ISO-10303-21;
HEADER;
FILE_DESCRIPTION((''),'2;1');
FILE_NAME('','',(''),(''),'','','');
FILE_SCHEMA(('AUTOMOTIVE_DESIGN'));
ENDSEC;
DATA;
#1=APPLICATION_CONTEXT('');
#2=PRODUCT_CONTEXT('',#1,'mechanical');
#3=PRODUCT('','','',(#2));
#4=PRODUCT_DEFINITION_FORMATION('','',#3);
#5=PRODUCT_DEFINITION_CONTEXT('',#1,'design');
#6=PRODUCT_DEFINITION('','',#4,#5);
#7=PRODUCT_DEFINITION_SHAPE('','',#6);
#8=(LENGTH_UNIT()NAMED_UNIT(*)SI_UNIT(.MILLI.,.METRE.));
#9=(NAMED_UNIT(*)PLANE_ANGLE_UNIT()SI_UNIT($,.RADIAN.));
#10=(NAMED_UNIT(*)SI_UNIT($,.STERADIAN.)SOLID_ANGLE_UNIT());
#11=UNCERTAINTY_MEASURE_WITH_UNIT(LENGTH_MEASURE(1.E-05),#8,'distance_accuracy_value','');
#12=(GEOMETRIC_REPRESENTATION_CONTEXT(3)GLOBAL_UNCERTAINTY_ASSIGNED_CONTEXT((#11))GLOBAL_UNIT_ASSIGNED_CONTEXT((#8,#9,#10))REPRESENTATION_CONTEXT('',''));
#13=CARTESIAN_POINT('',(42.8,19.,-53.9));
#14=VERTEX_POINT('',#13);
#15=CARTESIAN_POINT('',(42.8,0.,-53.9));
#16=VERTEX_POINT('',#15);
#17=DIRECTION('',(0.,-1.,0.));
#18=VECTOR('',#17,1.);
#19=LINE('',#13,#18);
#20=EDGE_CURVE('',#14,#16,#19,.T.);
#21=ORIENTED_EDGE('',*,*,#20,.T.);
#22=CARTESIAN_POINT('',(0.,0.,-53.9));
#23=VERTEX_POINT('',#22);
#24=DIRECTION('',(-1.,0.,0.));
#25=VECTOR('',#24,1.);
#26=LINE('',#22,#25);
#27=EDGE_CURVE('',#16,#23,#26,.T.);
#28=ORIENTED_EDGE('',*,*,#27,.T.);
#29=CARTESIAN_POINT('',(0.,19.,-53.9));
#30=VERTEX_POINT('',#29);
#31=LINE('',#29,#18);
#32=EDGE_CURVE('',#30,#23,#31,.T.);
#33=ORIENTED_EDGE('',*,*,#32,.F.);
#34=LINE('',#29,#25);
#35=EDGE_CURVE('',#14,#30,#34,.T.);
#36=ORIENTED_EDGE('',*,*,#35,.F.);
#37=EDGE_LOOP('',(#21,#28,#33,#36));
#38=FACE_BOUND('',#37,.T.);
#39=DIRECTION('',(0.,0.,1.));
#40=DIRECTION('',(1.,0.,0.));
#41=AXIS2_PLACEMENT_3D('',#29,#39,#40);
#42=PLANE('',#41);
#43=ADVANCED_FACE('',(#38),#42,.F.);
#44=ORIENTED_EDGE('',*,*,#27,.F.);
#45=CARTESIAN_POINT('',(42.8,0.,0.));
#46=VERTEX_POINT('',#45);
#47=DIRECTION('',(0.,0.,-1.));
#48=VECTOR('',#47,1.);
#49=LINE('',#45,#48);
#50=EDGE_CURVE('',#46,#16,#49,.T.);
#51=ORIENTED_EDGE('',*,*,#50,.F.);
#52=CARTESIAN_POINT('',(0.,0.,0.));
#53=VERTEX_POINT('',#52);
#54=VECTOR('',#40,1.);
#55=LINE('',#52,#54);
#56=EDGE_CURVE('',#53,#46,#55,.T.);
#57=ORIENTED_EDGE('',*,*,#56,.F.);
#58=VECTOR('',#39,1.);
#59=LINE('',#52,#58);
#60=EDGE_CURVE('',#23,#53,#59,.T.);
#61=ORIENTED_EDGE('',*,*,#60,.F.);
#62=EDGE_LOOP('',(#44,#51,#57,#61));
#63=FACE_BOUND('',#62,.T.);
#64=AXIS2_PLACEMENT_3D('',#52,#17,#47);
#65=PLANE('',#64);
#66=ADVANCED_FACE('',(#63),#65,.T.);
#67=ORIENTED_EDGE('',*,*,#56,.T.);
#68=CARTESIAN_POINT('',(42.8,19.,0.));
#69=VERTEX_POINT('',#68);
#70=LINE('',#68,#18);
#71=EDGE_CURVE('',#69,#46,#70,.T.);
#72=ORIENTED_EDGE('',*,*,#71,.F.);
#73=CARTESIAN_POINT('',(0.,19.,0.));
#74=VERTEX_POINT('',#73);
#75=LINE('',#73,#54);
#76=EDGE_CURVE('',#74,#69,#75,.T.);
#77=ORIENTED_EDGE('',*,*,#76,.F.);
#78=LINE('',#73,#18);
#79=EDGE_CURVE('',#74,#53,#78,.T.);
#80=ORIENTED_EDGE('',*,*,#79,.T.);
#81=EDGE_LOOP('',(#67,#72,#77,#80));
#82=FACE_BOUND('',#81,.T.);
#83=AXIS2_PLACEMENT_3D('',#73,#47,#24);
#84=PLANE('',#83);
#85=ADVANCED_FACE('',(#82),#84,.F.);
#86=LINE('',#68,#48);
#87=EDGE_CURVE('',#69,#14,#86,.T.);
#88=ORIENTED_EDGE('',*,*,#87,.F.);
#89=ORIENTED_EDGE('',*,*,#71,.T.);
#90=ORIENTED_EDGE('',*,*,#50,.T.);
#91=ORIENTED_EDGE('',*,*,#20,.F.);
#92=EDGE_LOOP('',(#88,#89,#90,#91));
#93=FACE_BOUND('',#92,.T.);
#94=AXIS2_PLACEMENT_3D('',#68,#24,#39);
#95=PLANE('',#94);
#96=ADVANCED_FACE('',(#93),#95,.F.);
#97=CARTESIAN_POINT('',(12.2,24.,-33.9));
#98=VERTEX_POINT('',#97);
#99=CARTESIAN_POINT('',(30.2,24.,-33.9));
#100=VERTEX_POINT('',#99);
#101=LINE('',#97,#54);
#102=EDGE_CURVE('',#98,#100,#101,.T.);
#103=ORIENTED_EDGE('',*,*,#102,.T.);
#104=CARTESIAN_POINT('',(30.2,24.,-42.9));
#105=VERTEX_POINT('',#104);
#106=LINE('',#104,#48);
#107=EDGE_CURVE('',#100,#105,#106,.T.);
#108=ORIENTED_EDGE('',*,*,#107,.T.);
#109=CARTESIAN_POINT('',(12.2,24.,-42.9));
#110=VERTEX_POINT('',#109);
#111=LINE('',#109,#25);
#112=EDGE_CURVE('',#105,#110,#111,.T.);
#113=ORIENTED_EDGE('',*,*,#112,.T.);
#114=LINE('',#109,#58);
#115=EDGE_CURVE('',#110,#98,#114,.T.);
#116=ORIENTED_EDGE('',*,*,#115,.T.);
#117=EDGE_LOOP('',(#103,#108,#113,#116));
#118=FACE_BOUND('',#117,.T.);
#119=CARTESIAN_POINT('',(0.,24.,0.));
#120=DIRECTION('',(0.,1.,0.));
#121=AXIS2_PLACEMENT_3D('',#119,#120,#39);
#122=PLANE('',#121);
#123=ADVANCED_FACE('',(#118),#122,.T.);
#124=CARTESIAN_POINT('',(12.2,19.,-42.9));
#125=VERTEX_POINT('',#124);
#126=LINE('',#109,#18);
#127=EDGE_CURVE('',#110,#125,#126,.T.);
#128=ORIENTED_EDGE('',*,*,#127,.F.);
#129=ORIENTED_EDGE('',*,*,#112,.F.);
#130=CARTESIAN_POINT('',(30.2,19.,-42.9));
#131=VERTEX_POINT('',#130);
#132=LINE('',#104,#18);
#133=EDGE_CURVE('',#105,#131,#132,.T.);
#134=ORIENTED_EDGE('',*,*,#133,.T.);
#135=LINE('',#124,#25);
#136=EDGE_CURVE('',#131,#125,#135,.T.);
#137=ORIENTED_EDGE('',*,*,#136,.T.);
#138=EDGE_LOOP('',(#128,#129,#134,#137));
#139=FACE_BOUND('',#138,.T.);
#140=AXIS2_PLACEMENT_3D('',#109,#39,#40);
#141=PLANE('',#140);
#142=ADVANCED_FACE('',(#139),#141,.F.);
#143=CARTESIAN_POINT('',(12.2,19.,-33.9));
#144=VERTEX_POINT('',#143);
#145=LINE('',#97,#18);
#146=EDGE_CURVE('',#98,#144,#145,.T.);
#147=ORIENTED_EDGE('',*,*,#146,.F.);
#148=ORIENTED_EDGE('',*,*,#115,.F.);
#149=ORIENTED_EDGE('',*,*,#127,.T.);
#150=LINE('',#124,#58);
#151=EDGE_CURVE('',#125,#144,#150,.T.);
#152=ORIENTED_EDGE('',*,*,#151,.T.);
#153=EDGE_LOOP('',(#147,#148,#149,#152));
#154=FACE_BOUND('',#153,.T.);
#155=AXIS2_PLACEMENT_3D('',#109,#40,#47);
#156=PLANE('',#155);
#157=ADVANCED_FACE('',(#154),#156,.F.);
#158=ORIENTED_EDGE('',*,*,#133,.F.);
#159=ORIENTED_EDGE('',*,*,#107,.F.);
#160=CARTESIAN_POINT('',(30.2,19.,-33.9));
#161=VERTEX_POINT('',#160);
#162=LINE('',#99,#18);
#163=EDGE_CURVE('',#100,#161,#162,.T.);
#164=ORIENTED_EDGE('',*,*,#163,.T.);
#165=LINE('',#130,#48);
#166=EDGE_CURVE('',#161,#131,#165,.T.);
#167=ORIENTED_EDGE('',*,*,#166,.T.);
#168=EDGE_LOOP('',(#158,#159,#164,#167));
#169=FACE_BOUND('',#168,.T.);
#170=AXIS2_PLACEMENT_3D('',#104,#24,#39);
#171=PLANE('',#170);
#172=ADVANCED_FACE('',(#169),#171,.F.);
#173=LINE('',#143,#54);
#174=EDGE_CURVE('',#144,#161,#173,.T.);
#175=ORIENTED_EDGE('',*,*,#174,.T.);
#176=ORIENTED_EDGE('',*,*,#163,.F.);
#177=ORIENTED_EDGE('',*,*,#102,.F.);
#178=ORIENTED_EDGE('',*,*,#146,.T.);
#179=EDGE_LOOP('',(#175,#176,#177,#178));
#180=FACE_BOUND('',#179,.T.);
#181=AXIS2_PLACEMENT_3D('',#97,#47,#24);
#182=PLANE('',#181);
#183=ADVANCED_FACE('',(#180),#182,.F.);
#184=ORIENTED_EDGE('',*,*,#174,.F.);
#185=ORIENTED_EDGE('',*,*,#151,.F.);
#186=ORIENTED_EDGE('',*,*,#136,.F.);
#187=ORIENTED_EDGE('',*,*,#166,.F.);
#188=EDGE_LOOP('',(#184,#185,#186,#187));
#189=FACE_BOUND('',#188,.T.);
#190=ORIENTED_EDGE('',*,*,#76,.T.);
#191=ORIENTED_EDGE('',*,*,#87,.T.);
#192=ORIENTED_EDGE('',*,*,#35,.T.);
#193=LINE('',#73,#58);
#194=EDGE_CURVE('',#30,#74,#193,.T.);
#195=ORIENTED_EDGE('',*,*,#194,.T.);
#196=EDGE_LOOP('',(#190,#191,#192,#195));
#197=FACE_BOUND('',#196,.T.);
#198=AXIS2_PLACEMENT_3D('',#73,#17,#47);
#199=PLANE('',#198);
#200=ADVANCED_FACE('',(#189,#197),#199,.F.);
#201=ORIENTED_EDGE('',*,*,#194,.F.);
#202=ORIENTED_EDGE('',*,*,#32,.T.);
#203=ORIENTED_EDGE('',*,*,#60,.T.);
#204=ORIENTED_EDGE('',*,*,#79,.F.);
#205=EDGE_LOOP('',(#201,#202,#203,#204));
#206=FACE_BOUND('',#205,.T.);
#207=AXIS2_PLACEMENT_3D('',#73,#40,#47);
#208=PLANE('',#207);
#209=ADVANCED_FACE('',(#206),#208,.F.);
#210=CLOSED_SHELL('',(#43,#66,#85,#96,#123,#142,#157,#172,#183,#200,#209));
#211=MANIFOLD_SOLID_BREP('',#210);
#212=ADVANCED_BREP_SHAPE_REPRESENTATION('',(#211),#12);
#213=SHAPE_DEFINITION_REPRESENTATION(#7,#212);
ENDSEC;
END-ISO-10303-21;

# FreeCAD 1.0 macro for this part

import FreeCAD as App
import Part
import Sketcher


def add_polygon(sketch, points):
    """Adds a closed chain of lines whose ends are joined by coincident constraints."""
    first, n = sketch.GeometryCount, len(points)
    for a, b in zip(points, points[1:] + points[:1]):
        sketch.addGeometry(Part.LineSegment(App.Vector(*a, 0), App.Vector(*b, 0)), False)
    for i in range(n):
        sketch.addConstraint(Sketcher.Constraint("Coincident", first + i, 2, first + (i + 1) % n, 1))

doc = App.newDocument("Part")
params = doc.addObject("Spreadsheet::Sheet", "Params")
for row, (alias, value) in enumerate([
    ("sketch1_width", "42.8 mm"),
    ("sketch1_height", "53.9 mm"),
    ("pad1_length", "19 mm"),
    ("sketch2_width", "18 mm"),
    ("sketch2_height", "9 mm"),
    ("pad2_length", "5 mm"),
], start=1):
    params.set(f"A{row}", alias)
    params.set(f"B{row}", "=" + value)
    params.setAlias(f"B{row}", alias)

body = doc.addObject("PartDesign::Body", "Body")

sketch1 = doc.addObject("Sketcher::SketchObject", "Sketch")
body.addObject(sketch1)
sketch1.AttachmentSupport = (doc.XZ_Plane, [""])
sketch1.MapMode = "FlatFace"
add_polygon(sketch1, [(0, -54), (0, 0), (43, 0), (43, -54)])
sketch1.addConstraint(Sketcher.Constraint("Vertical", 0))
sketch1.addConstraint(Sketcher.Constraint("Horizontal", 1))
sketch1.addConstraint(Sketcher.Constraint("Vertical", 2))
sketch1.addConstraint(Sketcher.Constraint("Horizontal", 3))
sketch1.addConstraint(Sketcher.Constraint("Coincident", 0, 2, -1, 1))
sketch1.addConstraint(Sketcher.Constraint("DistanceX", 1, 1, 1, 2, 42.8))
sketch1.addConstraint(Sketcher.Constraint("DistanceY", 0, 1, 0, 2, 53.9))
sketch1.setExpression("Constraints[9]", "Params.sketch1_width")
sketch1.setExpression("Constraints[10]", "Params.sketch1_height")
pad1 = doc.addObject("PartDesign::Pad", "Pad")
body.addObject(pad1)
pad1.Profile = sketch1
pad1.setExpression("Length", "Params.pad1_length")
pad1.Reversed = True

sketch2 = doc.addObject("Sketcher::SketchObject", "Sketch001")
body.addObject(sketch2)
sketch2.AttachmentSupport = (doc.XZ_Plane, [""])
sketch2.MapMode = "FlatFace"
sketch2.AttachmentOffset = App.Placement(App.Vector(0, 0, -19), App.Rotation())
add_polygon(sketch2, [(12, -43), (12, -34), (30, -34), (30, -43)])
sketch2.addConstraint(Sketcher.Constraint("Vertical", 0))
sketch2.addConstraint(Sketcher.Constraint("Horizontal", 1))
sketch2.addConstraint(Sketcher.Constraint("Vertical", 2))
sketch2.addConstraint(Sketcher.Constraint("Horizontal", 3))
sketch2.addConstraint(Sketcher.Constraint("DistanceX", 1, 1, 1, 2, 18.0))
sketch2.addConstraint(Sketcher.Constraint("DistanceY", 0, 1, 0, 2, 9.0))
sketch2.addConstraint(Sketcher.Constraint("DistanceX", -1, 1, 0, 2, 12.2))
sketch2.addConstraint(Sketcher.Constraint("DistanceY", 0, 2, -1, 1, 33.9))
sketch2.setExpression("Constraints[8]", "Params.sketch2_width")
sketch2.setExpression("Constraints[9]", "Params.sketch2_height")
pad2 = doc.addObject("PartDesign::Pad", "Pad001")
body.addObject(pad2)
pad2.Profile = sketch2
pad2.setExpression("Length", "Params.pad2_length")
pad2.Reversed = True

doc.recompute()
